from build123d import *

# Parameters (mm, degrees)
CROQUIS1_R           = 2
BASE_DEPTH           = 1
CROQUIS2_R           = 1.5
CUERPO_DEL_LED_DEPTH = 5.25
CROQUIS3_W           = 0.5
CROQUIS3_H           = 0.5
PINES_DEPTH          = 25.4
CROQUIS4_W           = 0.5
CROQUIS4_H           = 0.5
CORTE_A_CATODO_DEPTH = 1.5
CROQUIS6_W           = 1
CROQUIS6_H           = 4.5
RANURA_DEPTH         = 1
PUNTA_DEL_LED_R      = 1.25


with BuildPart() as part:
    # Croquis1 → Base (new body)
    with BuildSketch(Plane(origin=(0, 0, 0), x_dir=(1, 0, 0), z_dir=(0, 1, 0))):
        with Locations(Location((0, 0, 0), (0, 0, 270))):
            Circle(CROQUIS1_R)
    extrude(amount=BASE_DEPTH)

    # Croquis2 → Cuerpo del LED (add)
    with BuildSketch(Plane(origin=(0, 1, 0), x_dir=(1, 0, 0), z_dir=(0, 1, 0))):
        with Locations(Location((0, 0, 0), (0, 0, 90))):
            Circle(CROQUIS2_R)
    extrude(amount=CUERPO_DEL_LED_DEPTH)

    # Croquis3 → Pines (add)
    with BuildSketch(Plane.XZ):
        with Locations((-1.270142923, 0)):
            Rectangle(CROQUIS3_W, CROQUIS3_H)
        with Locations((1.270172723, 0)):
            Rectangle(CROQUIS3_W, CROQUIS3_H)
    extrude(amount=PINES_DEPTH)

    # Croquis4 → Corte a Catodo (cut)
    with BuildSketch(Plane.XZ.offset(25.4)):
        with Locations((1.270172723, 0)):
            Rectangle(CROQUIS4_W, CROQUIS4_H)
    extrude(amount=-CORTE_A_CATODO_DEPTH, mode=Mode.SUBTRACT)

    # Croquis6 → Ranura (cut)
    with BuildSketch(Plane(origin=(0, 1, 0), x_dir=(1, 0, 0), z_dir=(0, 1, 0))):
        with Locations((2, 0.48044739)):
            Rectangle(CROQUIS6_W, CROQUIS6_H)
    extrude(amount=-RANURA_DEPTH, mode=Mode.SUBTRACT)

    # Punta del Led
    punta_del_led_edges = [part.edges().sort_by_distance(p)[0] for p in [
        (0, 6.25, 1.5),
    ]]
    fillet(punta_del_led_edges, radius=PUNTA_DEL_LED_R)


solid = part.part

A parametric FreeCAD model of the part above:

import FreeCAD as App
import Part
import Sketcher

V = App.Vector


def edges_at(feature, points):
    """Names of the edges that pass closest to the given points."""
    edges = feature.Shape.Edges
    near = lambda p: min(range(len(edges)), key=lambda i: edges[i].distToShape(Part.Vertex(*p))[0])
    return sorted({f"Edge{near(p) + 1}" for p in points})

doc = App.newDocument("Part")
body = doc.addObject("PartDesign::Body", "Body")

sketch1 = body.newObject("Sketcher::SketchObject", "Sketch")
sketch1.AttachmentSupport = (doc.getObject("XZ_Plane"), [""])
sketch1.MapMode = "FlatFace"
sketch1.addGeometry(Part.Circle(V(0, 0, 0), V(0, 0, 1), 2), False)
sketch1.addConstraint(Sketcher.Constraint("Coincident", 0, 3, -1, 1))
sketch1.addConstraint(Sketcher.Constraint("Diameter", 0, 4.0))
pad1 = body.newObject("PartDesign::Pad", "Pad")
pad1.Profile = sketch1
pad1.Length = 1
pad1.Reversed = True

sketch2 = body.newObject("Sketcher::SketchObject", "Sketch001")
sketch2.AttachmentSupport = (doc.getObject("XZ_Plane"), [""])
sketch2.MapMode = "FlatFace"
sketch2.AttachmentOffset = App.Placement(V(0, 0, -1), App.Rotation())
sketch2.addGeometry(Part.Circle(V(0, 0, 0), V(0, 0, 1), 1.5), False)
sketch2.addConstraint(Sketcher.Constraint("Coincident", 0, 3, -1, 1))
sketch2.addConstraint(Sketcher.Constraint("Diameter", 0, 3.0))
pad2 = body.newObject("PartDesign::Pad", "Pad001")
pad2.Profile = sketch2
pad2.Length = 5.25
pad2.Reversed = True

sketch3 = body.newObject("Sketcher::SketchObject", "Sketch002")
sketch3.AttachmentSupport = (doc.getObject("XZ_Plane"), [""])
sketch3.MapMode = "FlatFace"
sketch3.addGeometry(Part.LineSegment(V(-1.520143, 0.25, 0), V(-1.520143, -0.25, 0)), False)
sketch3.addGeometry(Part.LineSegment(V(-1.520143, -0.25, 0), V(-1.020143, -0.25, 0)), False)
sketch3.addGeometry(Part.LineSegment(V(-1.020143, -0.25, 0), V(-1.020143, 0.25, 0)), False)
sketch3.addGeometry(Part.LineSegment(V(-1.020143, 0.25, 0), V(-1.520143, 0.25, 0)), False)
sketch3.addGeometry(Part.LineSegment(V(1.020173, 0.25, 0), V(1.020173, -0.25, 0)), False)
sketch3.addGeometry(Part.LineSegment(V(1.020173, -0.25, 0), V(1.520173, -0.25, 0)), False)
sketch3.addGeometry(Part.LineSegment(V(1.520173, -0.25, 0), V(1.520173, 0.25, 0)), False)
sketch3.addGeometry(Part.LineSegment(V(1.520173, 0.25, 0), V(1.020173, 0.25, 0)), False)
sketch3.addConstraint(Sketcher.Constraint("Coincident", 0, 2, 1, 1))
sketch3.addConstraint(Sketcher.Constraint("Coincident", 1, 2, 2, 1))
sketch3.addConstraint(Sketcher.Constraint("Coincident", 2, 2, 3, 1))
sketch3.addConstraint(Sketcher.Constraint("Coincident", 3, 2, 0, 1))
sketch3.addConstraint(Sketcher.Constraint("Coincident", 4, 2, 5, 1))
sketch3.addConstraint(Sketcher.Constraint("Coincident", 5, 2, 6, 1))
sketch3.addConstraint(Sketcher.Constraint("Coincident", 6, 2, 7, 1))
sketch3.addConstraint(Sketcher.Constraint("Coincident", 7, 2, 4, 1))
sketch3.addConstraint(Sketcher.Constraint("Vertical", 0))
sketch3.addConstraint(Sketcher.Constraint("Horizontal", 1))
sketch3.addConstraint(Sketcher.Constraint("Vertical", 2))
sketch3.addConstraint(Sketcher.Constraint("Horizontal", 3))
sketch3.addConstraint(Sketcher.Constraint("Vertical", 4))
sketch3.addConstraint(Sketcher.Constraint("Horizontal", 5))
sketch3.addConstraint(Sketcher.Constraint("Vertical", 6))
sketch3.addConstraint(Sketcher.Constraint("Horizontal", 7))
sketch3.addConstraint(Sketcher.Constraint("Horizontal", 1, 2, 4, 2))
sketch3.addConstraint(Sketcher.Constraint("Horizontal", 3, 2, 6, 2))
sketch3.addConstraint(Sketcher.Constraint("Equal", 3, 5))
sketch3.addConstraint(Sketcher.Constraint("Equal", 7, 0))
sketch3.addConstraint(Sketcher.Constraint("DistanceX", 1, 1, 1, 2, 0.5))
sketch3.addConstraint(Sketcher.Constraint("DistanceY", 0, 2, -1, 1, 0.25))
sketch3.addConstraint(Sketcher.Constraint("DistanceX", 0, 2, -1, 1, 1.520143))
sketch3.addConstraint(Sketcher.Constraint("DistanceX", -1, 1, 4, 2, 1.020173))
pad3 = body.newObject("PartDesign::Pad", "Pad002")
pad3.Profile = sketch3
pad3.Length = 25.4

sketch4 = body.newObject("Sketcher::SketchObject", "Sketch003")
sketch4.AttachmentSupport = (doc.getObject("XZ_Plane"), [""])
sketch4.MapMode = "FlatFace"
sketch4.AttachmentOffset = App.Placement(V(0, 0, 25.4), App.Rotation())
sketch4.addGeometry(Part.LineSegment(V(1.020173, 0.25, 0), V(1.020173, -0.25, 0)), False)
sketch4.addGeometry(Part.LineSegment(V(1.020173, -0.25, 0), V(1.520173, -0.25, 0)), False)
sketch4.addGeometry(Part.LineSegment(V(1.520173, -0.25, 0), V(1.520173, 0.25, 0)), False)
sketch4.addGeometry(Part.LineSegment(V(1.520173, 0.25, 0), V(1.020173, 0.25, 0)), False)
sketch4.addConstraint(Sketcher.Constraint("Coincident", 0, 2, 1, 1))
sketch4.addConstraint(Sketcher.Constraint("Coincident", 1, 2, 2, 1))
sketch4.addConstraint(Sketcher.Constraint("Coincident", 2, 2, 3, 1))
sketch4.addConstraint(Sketcher.Constraint("Coincident", 3, 2, 0, 1))
sketch4.addConstraint(Sketcher.Constraint("Vertical", 0))
sketch4.addConstraint(Sketcher.Constraint("Horizontal", 1))
sketch4.addConstraint(Sketcher.Constraint("Vertical", 2))
sketch4.addConstraint(Sketcher.Constraint("Horizontal", 3))
sketch4.addConstraint(Sketcher.Constraint("Equal", 3, 0))
sketch4.addConstraint(Sketcher.Constraint("DistanceX", 1, 1, 1, 2, 0.5))
sketch4.addConstraint(Sketcher.Constraint("DistanceY", 0, 2, -1, 1, 0.25))
sketch4.addConstraint(Sketcher.Constraint("DistanceX", -1, 1, 0, 2, 1.020173))
pocket1 = body.newObject("PartDesign::Pocket", "Pocket")
pocket1.Profile = sketch4
pocket1.Length = 1.5

sketch5 = body.newObject("Sketcher::SketchObject", "Sketch004")
sketch5.AttachmentSupport = (doc.getObject("XZ_Plane"), [""])
sketch5.MapMode = "FlatFace"
sketch5.AttachmentOffset = App.Placement(V(0, 0, -1), App.Rotation())
sketch5.addGeometry(Part.LineSegment(V(1.5, -2.730447, 0), V(1.5, 1.769553, 0)), False)
sketch5.addGeometry(Part.LineSegment(V(1.5, 1.769553, 0), V(2.5, 1.769553, 0)), False)
sketch5.addGeometry(Part.LineSegment(V(2.5, 1.769553, 0), V(2.5, -2.730447, 0)), False)
sketch5.addGeometry(Part.LineSegment(V(2.5, -2.730447, 0), V(1.5, -2.730447, 0)), False)
sketch5.addConstraint(Sketcher.Constraint("Coincident", 0, 2, 1, 1))
sketch5.addConstraint(Sketcher.Constraint("Coincident", 1, 2, 2, 1))
sketch5.addConstraint(Sketcher.Constraint("Coincident", 2, 2, 3, 1))
sketch5.addConstraint(Sketcher.Constraint("Coincident", 3, 2, 0, 1))
sketch5.addConstraint(Sketcher.Constraint("Vertical", 0))
sketch5.addConstraint(Sketcher.Constraint("Horizontal", 1))
sketch5.addConstraint(Sketcher.Constraint("Vertical", 2))
sketch5.addConstraint(Sketcher.Constraint("Horizontal", 3))
sketch5.addConstraint(Sketcher.Constraint("DistanceX", 1, 1, 1, 2, 1.0))
sketch5.addConstraint(Sketcher.Constraint("DistanceY", 0, 1, 0, 2, 4.5))
sketch5.addConstraint(Sketcher.Constraint("DistanceX", -1, 1, 0, 2, 1.5))
sketch5.addConstraint(Sketcher.Constraint("DistanceY", -1, 1, 0, 2, 1.769553))
pocket2 = body.newObject("PartDesign::Pocket", "Pocket001")
pocket2.Profile = sketch5
pocket2.Length = 1
pocket2.Reversed = True
doc.recompute()

fillet = body.newObject("PartDesign::Fillet", "Fillet")
fillet.Base = (pocket2, edges_at(pocket2, [(0, 6.25, 1.5)]))
fillet.Radius = 1.25

doc.recompute()
